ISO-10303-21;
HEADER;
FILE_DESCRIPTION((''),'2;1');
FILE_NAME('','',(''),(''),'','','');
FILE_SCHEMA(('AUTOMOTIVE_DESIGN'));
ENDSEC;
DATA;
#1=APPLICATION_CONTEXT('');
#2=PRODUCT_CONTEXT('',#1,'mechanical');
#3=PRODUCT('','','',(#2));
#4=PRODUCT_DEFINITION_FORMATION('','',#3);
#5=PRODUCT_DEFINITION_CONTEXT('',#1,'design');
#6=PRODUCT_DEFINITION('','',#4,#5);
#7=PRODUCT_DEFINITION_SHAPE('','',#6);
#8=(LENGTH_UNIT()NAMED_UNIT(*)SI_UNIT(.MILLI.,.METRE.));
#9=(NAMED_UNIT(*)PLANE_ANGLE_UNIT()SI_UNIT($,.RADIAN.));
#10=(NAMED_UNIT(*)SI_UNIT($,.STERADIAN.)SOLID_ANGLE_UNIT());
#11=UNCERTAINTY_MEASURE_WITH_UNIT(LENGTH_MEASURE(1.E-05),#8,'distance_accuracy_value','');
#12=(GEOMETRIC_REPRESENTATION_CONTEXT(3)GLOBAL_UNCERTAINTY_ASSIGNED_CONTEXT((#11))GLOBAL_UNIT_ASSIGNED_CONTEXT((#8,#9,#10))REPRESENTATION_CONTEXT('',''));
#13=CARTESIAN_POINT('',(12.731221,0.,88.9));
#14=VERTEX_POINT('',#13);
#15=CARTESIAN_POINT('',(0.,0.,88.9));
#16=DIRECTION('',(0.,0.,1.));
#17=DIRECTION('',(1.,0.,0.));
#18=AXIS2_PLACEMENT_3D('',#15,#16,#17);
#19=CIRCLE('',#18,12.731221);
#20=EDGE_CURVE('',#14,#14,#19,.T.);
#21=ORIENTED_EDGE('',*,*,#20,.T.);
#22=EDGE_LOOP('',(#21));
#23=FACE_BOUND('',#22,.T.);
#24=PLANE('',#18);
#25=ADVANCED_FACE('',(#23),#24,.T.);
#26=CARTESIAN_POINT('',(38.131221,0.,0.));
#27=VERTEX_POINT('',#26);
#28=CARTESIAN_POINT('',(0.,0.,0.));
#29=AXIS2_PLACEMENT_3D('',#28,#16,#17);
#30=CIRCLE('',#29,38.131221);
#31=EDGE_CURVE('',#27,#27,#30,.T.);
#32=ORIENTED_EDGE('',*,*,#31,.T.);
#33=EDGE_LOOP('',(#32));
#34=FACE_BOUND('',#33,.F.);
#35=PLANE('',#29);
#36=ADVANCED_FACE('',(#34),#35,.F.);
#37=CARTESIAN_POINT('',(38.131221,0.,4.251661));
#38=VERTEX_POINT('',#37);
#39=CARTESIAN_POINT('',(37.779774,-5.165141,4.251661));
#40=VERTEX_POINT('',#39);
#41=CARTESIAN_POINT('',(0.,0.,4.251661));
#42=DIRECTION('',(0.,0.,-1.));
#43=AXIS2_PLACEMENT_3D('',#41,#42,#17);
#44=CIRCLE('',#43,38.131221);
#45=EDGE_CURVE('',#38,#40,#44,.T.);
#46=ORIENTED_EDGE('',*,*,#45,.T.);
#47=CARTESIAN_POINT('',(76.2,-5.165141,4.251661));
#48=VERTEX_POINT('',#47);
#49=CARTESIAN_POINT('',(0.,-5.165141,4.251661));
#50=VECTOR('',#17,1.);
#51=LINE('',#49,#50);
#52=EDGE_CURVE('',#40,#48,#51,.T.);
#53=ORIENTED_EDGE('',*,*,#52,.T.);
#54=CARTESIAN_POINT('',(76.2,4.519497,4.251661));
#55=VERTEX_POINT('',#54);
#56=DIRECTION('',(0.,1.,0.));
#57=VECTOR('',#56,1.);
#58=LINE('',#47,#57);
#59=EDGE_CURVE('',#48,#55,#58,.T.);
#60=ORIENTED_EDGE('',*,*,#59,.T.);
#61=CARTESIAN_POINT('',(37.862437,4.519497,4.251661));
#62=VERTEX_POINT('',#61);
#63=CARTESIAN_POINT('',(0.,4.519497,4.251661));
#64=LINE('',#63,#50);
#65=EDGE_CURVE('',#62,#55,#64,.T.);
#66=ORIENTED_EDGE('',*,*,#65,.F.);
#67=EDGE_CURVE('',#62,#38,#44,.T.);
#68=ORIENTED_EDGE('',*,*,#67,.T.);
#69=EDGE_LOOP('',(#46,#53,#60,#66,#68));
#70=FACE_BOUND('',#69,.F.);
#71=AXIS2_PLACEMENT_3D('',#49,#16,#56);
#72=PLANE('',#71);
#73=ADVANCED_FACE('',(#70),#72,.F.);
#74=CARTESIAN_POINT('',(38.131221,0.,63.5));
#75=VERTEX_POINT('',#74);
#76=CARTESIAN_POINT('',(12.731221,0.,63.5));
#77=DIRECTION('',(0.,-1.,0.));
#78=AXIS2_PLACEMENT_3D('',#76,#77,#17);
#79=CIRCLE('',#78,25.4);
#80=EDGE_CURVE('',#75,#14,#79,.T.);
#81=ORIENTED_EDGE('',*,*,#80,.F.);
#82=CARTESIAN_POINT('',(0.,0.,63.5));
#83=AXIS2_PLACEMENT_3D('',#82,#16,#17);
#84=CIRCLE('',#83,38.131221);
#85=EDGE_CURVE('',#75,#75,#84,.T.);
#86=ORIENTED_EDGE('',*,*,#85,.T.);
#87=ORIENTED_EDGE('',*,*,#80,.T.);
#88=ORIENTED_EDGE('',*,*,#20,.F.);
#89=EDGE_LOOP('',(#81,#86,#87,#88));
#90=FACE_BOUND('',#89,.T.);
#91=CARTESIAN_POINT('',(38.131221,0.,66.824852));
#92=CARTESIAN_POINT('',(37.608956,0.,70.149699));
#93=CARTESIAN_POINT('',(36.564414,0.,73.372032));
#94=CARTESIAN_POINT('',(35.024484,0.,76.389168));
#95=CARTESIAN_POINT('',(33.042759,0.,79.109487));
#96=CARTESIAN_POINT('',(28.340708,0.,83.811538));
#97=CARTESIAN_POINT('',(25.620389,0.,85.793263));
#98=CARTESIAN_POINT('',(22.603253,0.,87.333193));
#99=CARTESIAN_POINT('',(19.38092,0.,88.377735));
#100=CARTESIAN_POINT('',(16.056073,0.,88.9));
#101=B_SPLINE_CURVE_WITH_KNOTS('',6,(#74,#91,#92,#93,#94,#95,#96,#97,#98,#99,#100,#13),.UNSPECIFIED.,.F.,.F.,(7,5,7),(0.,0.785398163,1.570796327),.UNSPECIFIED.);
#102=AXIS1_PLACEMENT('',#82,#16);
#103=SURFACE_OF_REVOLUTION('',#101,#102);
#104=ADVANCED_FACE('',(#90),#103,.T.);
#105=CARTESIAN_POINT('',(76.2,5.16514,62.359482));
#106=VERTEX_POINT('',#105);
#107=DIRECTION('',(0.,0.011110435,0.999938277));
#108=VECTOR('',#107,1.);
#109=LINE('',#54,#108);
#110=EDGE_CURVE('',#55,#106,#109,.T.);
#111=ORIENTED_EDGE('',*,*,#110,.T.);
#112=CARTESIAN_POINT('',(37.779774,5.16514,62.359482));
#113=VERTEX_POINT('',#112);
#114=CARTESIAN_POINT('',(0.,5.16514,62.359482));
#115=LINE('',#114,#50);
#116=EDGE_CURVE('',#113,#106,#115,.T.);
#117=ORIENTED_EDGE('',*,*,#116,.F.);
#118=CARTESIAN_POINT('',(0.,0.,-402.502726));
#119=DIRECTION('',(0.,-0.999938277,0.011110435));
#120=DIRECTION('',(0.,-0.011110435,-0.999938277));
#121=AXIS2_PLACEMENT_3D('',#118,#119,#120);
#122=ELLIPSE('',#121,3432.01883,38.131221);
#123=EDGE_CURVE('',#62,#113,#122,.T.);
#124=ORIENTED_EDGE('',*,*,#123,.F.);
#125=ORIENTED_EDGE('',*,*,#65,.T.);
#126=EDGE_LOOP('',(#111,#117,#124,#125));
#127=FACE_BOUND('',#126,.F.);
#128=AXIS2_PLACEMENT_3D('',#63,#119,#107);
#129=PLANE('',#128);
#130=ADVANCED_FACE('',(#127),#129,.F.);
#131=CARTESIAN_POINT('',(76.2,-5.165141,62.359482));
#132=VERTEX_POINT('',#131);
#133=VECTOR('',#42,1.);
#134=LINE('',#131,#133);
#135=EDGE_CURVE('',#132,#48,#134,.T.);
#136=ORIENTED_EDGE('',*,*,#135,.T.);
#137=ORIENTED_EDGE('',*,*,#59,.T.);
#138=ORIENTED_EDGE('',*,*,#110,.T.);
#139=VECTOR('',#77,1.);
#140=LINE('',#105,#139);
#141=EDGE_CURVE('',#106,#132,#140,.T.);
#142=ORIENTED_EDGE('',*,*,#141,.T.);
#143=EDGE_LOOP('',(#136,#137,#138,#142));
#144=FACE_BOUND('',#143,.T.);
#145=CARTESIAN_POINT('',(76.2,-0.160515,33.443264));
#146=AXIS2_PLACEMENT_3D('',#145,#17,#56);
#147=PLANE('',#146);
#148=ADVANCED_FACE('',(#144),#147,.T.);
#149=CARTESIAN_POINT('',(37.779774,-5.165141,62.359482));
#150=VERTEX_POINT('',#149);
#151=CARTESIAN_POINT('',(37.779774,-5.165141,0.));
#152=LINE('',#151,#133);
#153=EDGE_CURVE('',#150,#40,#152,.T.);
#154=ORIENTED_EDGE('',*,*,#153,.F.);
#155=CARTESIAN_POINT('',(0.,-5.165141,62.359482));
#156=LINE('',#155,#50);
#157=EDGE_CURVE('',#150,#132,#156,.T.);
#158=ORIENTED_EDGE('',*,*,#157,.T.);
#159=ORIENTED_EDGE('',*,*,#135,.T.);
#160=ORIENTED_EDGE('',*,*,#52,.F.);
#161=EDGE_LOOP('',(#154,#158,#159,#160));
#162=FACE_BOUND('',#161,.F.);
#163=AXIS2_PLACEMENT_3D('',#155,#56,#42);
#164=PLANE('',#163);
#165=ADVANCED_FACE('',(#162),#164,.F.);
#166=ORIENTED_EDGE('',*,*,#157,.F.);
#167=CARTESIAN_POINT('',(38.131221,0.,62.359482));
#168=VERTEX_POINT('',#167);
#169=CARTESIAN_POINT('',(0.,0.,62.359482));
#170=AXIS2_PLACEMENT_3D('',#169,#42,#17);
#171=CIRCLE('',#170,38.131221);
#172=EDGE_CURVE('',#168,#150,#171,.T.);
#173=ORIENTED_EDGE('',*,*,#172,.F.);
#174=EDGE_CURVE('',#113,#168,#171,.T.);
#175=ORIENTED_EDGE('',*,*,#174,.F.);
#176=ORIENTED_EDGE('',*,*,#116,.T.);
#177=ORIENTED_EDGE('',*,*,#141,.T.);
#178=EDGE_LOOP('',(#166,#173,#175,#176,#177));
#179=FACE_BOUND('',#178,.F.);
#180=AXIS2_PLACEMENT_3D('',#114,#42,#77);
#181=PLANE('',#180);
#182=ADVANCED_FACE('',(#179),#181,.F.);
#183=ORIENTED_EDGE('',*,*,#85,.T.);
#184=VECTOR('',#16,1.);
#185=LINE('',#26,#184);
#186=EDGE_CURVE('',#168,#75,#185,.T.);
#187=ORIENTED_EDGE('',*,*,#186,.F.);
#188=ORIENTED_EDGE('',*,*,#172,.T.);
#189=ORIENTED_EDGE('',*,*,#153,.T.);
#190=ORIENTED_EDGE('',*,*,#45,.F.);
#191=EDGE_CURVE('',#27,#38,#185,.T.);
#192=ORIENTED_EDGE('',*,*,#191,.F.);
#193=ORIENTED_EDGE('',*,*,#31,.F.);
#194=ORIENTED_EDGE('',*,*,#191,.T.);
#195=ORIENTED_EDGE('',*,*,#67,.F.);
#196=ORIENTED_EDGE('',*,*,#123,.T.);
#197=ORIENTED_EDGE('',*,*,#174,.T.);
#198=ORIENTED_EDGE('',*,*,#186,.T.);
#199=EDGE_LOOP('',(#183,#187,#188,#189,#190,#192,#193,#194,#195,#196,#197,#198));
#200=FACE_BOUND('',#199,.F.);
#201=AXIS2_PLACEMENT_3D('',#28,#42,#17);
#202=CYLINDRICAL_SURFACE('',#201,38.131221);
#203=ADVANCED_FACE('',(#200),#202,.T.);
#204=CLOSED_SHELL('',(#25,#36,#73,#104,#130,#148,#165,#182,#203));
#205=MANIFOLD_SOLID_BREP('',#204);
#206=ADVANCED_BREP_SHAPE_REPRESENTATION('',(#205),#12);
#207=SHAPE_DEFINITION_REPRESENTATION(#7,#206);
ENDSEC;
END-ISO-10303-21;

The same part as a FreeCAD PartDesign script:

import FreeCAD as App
import Part
import Sketcher
Q = App.Units.Quantity


def edges_at(feature, points):
    """Names of the edges that pass closest to the given points."""
    edges = feature.Shape.Edges
    near = lambda p: min(range(len(edges)), key=lambda i: edges[i].distToShape(Part.Vertex(*p))[0])
    return sorted({f"Edge{near(p) + 1}" for p in points})


def add_polygon(sketch, points):
    """Adds a closed chain of lines whose ends are joined by coincident constraints."""
    first, n = sketch.GeometryCount, len(points)
    for a, b in zip(points, points[1:] + points[:1]):
        sketch.addGeometry(Part.LineSegment(App.Vector(*a, 0), App.Vector(*b, 0)), False)
    for i in range(n):
        sketch.addConstraint(Sketcher.Constraint("Coincident", first + i, 2, first + (i + 1) % n, 1))

doc = App.newDocument("Part")
body = doc.addObject("PartDesign::Body", "Body")

sketch1 = body.newObject("Sketcher::SketchObject", "Sketch")
sketch1.AttachmentSupport = (doc.getObject("XY_Plane"), [""])
sketch1.MapMode = "FlatFace"
sketch1.addGeometry(Part.Circle(App.Vector(0, 0, 0), App.Vector(0, 0, 1), 38.131221), False)
sketch1.addConstraint([
    Sketcher.Constraint("Coincident", 0, 3, -1, 1),
    Sketcher.Constraint("Diameter", 0, 76.262442),
])
pad1 = body.newObject("PartDesign::Pad", "Pad")
pad1.Profile = sketch1
pad1.Length = Q("3.5 in")
doc.recompute()

fillet = body.newObject("PartDesign::Fillet", "Fillet")
fillet.Base = (pad1, edges_at(pad1, [(-38.131, 0, 88.9)]))
fillet.Radius = Q("1 in")

sketch2 = body.newObject("Sketcher::SketchObject", "Sketch001")
sketch2.AttachmentSupport = (doc.getObject("YZ_Plane"), [""])
sketch2.MapMode = "FlatFace"
add_polygon(sketch2, [(4.519497, 4.251661), (5.16514, 62.359482), (-5.165141, 62.359482), (-5.165141, 4.251661)])
sketch2.addConstraint([
    Sketcher.Constraint("Horizontal", 1),
    Sketcher.Constraint("Vertical", 2),
    Sketcher.Constraint("Horizontal", 3),
    Sketcher.Constraint("DistanceX", 1, 2, 1, 1, 10.330281),
    Sketcher.Constraint("DistanceY", 2, 2, 2, 1, 58.107821),
    Sketcher.Constraint("DistanceX", 3, 1, 3, 2, 9.684638),
    Sketcher.Constraint("DistanceX", -1, 1, 0, 2, 5.16514),
    Sketcher.Constraint("DistanceY", -1, 1, 2, 2, 4.251661),
])
pad2 = body.newObject("PartDesign::Pad", "Pad001")
pad2.Profile = sketch2
pad2.Length = Q("3 in")

doc.recompute()
